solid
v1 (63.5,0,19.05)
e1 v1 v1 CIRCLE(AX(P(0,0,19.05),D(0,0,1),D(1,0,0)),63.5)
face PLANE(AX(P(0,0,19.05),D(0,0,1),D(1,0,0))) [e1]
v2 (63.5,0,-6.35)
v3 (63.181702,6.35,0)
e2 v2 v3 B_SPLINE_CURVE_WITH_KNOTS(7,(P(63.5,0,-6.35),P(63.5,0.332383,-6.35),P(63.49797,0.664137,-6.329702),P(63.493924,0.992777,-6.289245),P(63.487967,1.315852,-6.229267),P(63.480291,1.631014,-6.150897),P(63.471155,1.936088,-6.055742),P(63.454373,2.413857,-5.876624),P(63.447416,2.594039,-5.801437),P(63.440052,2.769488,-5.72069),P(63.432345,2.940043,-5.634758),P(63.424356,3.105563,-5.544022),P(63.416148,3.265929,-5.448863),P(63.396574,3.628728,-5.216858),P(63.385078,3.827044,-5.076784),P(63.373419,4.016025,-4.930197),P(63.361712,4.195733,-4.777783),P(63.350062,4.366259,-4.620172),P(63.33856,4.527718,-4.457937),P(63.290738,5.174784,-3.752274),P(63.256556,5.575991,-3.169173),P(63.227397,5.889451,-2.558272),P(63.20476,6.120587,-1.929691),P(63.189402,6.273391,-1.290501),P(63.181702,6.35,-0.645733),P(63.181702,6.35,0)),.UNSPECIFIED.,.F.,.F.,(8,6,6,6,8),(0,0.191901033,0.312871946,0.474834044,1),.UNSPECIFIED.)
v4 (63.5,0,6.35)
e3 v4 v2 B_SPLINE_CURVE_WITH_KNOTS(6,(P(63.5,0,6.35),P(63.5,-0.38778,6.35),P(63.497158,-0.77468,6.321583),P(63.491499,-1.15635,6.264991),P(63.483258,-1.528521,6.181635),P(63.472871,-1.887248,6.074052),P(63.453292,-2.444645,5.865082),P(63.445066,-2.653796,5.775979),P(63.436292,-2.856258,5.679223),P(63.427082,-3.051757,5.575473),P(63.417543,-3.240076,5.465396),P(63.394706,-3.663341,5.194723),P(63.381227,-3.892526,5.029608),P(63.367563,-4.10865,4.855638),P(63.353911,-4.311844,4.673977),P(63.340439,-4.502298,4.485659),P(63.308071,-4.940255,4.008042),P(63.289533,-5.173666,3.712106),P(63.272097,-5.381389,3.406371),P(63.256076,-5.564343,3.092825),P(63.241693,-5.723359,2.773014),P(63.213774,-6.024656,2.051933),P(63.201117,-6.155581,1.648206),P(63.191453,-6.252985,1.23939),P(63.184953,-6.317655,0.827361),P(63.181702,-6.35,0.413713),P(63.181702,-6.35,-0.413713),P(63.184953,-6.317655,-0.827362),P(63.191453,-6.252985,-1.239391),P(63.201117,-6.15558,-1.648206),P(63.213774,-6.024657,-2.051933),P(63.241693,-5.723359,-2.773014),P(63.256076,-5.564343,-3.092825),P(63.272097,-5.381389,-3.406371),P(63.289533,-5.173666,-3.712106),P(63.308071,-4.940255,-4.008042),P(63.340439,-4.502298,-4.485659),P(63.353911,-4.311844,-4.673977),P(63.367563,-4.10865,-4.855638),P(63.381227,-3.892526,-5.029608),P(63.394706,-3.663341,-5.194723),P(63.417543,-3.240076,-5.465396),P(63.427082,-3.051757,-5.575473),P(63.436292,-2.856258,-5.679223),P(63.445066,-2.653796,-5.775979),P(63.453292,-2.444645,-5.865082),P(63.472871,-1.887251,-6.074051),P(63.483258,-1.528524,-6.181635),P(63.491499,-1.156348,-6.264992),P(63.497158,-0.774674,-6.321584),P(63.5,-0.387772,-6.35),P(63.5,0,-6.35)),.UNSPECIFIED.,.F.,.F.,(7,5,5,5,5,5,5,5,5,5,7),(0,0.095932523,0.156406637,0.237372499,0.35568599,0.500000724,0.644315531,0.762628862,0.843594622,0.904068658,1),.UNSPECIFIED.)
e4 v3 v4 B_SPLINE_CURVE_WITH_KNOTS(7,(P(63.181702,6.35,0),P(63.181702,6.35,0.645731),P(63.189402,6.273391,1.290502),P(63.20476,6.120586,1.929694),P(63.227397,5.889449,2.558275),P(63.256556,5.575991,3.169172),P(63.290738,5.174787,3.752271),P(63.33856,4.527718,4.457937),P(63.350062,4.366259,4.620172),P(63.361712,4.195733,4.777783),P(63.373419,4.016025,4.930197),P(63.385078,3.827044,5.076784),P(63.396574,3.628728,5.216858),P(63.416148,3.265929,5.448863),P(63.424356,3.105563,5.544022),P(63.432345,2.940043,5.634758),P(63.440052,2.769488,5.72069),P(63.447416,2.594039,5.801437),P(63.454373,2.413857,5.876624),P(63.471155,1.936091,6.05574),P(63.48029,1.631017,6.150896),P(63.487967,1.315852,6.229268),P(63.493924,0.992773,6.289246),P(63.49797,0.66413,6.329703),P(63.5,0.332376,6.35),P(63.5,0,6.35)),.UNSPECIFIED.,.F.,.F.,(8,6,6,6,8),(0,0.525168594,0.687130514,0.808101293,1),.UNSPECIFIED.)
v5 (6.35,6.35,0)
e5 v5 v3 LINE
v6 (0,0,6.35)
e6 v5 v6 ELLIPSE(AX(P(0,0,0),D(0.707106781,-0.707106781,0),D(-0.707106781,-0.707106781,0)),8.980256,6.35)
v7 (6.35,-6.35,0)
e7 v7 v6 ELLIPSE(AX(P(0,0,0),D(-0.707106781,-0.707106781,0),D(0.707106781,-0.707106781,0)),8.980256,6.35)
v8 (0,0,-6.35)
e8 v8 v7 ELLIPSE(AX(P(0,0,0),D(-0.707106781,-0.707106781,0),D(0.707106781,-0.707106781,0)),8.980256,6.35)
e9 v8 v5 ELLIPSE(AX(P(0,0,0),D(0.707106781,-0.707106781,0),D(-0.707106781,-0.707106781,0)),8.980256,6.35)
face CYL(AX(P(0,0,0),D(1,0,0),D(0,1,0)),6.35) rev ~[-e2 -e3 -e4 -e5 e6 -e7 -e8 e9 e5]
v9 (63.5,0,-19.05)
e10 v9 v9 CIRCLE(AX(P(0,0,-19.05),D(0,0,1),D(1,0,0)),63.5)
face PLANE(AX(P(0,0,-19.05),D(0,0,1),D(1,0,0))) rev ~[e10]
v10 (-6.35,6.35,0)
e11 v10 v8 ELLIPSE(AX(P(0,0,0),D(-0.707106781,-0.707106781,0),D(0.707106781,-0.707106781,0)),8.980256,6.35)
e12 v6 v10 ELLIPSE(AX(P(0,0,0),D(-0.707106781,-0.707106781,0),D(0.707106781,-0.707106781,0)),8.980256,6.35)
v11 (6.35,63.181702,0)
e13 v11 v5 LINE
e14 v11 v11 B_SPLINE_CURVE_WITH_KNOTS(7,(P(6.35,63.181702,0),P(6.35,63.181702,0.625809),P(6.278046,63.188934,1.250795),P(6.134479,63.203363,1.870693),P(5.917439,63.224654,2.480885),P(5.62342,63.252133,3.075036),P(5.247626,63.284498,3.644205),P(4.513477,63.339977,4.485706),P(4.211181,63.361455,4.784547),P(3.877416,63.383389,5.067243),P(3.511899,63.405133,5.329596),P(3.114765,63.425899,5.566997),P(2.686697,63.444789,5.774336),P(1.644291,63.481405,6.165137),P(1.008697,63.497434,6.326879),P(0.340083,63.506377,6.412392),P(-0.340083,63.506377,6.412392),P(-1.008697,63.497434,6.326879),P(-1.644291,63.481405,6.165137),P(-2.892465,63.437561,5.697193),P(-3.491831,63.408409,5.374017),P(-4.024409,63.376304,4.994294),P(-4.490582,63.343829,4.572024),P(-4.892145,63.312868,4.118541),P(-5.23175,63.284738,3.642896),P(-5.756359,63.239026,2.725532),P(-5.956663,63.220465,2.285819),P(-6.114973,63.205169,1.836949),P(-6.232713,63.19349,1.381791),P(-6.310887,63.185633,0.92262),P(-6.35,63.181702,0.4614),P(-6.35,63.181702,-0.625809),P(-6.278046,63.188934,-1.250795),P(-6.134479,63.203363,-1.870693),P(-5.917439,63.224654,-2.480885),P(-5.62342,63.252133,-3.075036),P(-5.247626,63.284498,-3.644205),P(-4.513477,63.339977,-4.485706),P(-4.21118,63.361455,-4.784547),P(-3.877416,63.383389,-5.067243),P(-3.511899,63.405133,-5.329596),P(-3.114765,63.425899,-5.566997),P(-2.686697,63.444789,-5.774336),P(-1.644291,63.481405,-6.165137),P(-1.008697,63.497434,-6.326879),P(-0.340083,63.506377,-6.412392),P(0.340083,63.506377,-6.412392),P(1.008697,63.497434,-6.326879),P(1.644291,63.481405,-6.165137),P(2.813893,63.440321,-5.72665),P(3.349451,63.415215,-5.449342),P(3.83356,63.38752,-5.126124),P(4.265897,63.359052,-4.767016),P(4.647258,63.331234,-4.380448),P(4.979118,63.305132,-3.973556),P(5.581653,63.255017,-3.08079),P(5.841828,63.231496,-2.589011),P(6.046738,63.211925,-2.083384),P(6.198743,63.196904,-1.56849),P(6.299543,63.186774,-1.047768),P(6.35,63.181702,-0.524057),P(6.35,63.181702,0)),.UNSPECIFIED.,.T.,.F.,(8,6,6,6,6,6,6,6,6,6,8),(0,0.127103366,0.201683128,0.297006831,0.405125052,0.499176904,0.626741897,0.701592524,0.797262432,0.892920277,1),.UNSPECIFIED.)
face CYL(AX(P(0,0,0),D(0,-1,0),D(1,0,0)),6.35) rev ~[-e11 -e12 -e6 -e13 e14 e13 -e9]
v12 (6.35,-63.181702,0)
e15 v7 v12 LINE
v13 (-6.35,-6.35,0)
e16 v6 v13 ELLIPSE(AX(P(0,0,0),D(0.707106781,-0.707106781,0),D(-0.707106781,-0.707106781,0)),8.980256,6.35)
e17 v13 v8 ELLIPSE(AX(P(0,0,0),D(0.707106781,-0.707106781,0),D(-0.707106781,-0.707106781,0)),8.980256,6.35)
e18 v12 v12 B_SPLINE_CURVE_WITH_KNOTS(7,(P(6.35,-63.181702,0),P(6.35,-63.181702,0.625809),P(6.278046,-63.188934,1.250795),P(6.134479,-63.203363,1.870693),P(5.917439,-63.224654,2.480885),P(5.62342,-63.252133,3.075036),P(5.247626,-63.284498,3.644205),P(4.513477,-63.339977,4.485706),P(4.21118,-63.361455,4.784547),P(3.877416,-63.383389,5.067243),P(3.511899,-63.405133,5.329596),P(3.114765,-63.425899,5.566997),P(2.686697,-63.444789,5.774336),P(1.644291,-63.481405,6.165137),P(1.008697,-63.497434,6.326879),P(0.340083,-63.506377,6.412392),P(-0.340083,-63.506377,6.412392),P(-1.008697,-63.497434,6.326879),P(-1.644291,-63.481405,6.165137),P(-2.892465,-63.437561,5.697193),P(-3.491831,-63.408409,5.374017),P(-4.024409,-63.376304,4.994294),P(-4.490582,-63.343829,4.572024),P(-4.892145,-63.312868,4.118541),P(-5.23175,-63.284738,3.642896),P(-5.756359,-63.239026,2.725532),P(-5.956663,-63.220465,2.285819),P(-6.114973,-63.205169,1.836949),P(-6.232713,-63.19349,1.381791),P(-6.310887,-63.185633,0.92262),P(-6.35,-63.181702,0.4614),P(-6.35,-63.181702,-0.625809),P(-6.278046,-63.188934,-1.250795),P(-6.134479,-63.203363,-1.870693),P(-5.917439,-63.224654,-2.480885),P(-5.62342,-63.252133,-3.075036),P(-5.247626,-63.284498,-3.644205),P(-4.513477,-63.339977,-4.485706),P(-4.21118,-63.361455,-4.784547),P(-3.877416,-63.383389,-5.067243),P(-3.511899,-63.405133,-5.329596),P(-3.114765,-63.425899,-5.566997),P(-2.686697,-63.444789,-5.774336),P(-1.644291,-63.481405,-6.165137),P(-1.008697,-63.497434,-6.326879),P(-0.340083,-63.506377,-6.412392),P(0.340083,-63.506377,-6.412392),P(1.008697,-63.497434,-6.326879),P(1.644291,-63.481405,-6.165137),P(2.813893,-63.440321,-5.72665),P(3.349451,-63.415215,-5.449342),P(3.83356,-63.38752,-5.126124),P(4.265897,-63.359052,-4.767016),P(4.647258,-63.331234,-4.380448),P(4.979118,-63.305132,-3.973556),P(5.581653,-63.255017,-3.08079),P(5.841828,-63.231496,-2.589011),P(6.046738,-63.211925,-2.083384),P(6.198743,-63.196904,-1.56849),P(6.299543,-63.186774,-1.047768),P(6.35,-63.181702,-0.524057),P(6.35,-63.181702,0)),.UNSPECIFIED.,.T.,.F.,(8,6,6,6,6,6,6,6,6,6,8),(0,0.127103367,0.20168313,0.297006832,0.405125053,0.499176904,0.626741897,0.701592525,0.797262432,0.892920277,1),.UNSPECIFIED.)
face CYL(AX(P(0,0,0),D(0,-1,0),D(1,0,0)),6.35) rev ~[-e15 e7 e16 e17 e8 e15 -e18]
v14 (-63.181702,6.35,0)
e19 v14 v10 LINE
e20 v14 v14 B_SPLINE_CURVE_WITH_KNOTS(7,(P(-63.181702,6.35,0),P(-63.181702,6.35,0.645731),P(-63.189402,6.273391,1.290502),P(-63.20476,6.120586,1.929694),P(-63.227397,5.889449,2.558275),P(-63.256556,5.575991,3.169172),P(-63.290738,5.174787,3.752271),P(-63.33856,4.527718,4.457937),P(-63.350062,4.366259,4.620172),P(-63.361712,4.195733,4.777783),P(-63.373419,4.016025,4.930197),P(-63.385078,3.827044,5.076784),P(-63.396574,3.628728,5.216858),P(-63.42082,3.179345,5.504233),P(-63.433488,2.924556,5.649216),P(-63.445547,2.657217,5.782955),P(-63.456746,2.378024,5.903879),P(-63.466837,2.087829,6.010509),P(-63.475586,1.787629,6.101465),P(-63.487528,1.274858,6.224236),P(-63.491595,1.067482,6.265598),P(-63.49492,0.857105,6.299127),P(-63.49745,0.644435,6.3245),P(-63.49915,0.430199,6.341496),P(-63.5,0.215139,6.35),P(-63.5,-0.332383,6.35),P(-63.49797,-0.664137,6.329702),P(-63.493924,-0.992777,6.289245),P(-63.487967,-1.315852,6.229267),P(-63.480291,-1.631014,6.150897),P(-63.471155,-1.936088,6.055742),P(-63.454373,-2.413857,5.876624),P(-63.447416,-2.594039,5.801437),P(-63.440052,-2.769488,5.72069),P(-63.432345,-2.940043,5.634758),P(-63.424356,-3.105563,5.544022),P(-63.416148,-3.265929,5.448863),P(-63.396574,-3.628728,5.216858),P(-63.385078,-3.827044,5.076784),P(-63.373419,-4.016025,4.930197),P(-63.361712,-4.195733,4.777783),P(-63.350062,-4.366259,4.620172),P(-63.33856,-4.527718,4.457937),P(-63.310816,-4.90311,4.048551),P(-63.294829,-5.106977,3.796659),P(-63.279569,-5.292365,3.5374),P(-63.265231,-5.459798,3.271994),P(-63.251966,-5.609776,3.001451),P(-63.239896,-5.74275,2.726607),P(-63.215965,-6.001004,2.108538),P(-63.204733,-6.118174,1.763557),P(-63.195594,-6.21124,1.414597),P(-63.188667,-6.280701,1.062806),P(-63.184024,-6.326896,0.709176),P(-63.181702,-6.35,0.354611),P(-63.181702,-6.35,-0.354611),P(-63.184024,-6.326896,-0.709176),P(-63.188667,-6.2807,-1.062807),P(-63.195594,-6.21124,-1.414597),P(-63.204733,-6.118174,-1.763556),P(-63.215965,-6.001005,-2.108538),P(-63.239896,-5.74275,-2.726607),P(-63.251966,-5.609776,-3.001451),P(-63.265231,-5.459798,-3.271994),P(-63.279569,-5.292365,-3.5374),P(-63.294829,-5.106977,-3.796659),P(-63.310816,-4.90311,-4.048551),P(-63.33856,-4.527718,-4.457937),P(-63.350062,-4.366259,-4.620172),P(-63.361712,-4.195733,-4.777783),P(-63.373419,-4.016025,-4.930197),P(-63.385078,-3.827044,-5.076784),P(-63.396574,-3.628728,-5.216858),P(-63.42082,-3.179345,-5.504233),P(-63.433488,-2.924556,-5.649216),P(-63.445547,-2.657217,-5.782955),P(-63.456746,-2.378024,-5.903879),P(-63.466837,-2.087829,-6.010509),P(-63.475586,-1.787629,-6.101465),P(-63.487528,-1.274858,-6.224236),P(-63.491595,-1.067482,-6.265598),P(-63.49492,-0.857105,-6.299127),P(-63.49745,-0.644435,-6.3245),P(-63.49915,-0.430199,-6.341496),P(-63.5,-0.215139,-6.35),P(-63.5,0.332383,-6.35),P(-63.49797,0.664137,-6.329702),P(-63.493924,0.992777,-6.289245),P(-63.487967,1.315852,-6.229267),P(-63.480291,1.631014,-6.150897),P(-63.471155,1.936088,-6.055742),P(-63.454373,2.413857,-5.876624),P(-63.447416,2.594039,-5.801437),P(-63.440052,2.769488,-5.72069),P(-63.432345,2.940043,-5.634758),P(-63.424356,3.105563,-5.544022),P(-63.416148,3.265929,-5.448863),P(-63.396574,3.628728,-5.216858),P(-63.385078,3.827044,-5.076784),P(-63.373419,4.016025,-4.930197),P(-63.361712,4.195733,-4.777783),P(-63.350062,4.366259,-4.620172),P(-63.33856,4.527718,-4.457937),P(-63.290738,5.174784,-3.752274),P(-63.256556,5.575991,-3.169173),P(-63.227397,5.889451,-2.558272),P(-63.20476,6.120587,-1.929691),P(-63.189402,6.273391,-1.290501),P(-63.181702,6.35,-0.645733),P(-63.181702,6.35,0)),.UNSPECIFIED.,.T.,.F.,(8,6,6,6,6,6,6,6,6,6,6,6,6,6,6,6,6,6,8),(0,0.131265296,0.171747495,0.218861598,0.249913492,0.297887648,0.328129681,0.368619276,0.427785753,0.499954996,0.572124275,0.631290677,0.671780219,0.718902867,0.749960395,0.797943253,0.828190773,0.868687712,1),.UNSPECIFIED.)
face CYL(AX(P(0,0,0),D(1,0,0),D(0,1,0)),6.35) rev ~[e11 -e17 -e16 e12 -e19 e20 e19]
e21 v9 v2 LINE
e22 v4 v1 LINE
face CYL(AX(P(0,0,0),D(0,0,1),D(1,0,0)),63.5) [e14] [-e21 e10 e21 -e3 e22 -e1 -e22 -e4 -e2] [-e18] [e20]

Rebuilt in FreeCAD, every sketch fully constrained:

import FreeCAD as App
import Part
import Sketcher

V = App.Vector
Q = App.Units.Quantity

doc = App.newDocument("Part")
body = doc.addObject("PartDesign::Body", "Body")

# Sketch on XY plane
sketch1 = doc.addObject("Sketcher::SketchObject", "Sketch")
body.addObject(sketch1)
sketch1.AttachmentSupport = (doc.XY_Plane, [""])
sketch1.MapMode = "FlatFace"
sketch1.addGeometry(Part.Circle(V(0, 0, 0), V(0, 0, 1), 64), False)
sketch1.addConstraint([
    Sketcher.Constraint("Coincident", 0, 3, -1, 1),
    Sketcher.Constraint("Diameter", 0, Q("5 in")),
])
pad1 = doc.addObject("PartDesign::Pad", "Pad")
body.addObject(pad1)
pad1.Profile = sketch1
pad1.Length = Q("1.5 in")
pad1.Midplane = True

# Sketch on XZ plane
sketch2 = doc.addObject("Sketcher::SketchObject", "Sketch001")
body.addObject(sketch2)
sketch2.AttachmentSupport = (doc.XZ_Plane, [""])
sketch2.MapMode = "FlatFace"
sketch2.addGeometry(Part.Circle(V(0, 0, 0), V(0, 0, 1), 6), False)
sketch2.addConstraint([
    Sketcher.Constraint("Coincident", 0, 3, -1, 1),
    Sketcher.Constraint("Diameter", 0, Q("0.5 in")),
])
pocket1 = doc.addObject("PartDesign::Pocket", "Pocket")
body.addObject(pocket1)
pocket1.Profile = sketch2
pocket1.Length = Q("30 in")
pocket1.Midplane = True

# Sketch on YZ plane
sketch3 = doc.addObject("Sketcher::SketchObject", "Sketch002")
body.addObject(sketch3)
sketch3.AttachmentSupport = (doc.YZ_Plane, [""])
sketch3.MapMode = "FlatFace"
sketch3.addGeometry(Part.Circle(V(0, 0, 0), V(0, 0, 1), 6), False)
sketch3.addConstraint([
    Sketcher.Constraint("Coincident", 0, 3, -1, 1),
    Sketcher.Constraint("Diameter", 0, Q("0.5 in")),
])
pocket2 = doc.addObject("PartDesign::Pocket", "Pocket001")
body.addObject(pocket2)
pocket2.Profile = sketch3
pocket2.Length = Q("30 in")
pocket2.Midplane = True

doc.recompute()
